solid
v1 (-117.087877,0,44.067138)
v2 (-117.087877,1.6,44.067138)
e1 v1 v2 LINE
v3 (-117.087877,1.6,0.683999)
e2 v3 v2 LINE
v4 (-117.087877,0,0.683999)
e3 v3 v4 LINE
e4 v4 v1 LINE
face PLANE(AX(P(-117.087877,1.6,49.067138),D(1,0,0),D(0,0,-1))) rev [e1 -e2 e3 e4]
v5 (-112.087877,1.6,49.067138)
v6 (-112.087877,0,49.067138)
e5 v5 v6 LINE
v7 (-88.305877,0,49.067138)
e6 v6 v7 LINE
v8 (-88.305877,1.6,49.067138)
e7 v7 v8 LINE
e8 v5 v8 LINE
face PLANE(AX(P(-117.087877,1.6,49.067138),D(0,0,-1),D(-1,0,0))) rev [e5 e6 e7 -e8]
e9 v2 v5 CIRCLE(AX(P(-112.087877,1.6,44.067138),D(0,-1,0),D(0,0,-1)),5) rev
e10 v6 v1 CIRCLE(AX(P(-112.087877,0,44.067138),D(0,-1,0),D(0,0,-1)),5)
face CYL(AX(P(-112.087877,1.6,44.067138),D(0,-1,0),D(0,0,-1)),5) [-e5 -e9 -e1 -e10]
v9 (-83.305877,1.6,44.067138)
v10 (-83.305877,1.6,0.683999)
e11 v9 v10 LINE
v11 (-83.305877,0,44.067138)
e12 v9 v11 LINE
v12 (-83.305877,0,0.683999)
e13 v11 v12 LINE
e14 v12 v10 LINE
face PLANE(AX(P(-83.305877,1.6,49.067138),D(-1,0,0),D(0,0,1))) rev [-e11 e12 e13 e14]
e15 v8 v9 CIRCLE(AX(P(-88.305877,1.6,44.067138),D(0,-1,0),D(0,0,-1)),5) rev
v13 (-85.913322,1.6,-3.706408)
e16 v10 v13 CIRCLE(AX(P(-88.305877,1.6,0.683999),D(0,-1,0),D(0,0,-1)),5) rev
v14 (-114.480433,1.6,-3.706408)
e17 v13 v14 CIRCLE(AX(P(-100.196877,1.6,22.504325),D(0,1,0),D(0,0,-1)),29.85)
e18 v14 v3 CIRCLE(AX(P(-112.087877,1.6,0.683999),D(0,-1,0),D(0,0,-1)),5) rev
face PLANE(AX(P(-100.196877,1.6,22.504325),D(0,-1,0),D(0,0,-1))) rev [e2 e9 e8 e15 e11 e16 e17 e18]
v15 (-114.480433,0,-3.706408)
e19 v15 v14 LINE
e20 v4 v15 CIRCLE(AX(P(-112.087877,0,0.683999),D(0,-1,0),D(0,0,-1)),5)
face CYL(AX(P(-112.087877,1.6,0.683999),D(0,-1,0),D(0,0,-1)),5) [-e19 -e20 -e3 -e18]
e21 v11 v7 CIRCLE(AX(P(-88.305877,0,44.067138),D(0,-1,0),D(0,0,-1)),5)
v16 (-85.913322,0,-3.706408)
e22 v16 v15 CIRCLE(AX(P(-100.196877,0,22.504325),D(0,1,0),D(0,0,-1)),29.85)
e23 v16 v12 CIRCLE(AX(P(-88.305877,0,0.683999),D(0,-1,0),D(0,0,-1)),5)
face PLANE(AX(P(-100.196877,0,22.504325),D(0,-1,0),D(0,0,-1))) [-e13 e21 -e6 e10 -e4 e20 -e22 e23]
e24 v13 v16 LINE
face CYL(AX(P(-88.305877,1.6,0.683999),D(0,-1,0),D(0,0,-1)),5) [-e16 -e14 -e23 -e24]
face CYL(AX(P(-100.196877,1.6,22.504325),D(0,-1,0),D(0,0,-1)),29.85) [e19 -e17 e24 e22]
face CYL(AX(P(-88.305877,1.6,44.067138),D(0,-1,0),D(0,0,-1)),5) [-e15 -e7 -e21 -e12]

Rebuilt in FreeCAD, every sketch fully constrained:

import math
import FreeCAD as App
import Part
import Sketcher
from FreeCAD import Vector
Q = App.Units.Quantity


def edges_at(feature, points):
    """Names of the edges that pass closest to the given points."""
    edges = feature.Shape.Edges
    near = lambda p: min(range(len(edges)), key=lambda i: edges[i].distToShape(Part.Vertex(*p))[0])
    return sorted({f"Edge{near(p) + 1}" for p in points})

doc = App.newDocument("Part")
params = doc.addObject("Spreadsheet::Sheet", "Params")
for row, (alias, value) in enumerate([
    ("sketch1_radius", "29.85 mm"),
    ("pad1_length", "1.6 mm"),
    ("fillet_radius", "5 mm"),
], start=1):
    params.set(f"A{row}", alias)
    params.set(f"B{row}", "=" + value)
    params.setAlias(f"B{row}", alias)

body = doc.addObject("PartDesign::Body", "Body")

sketch1 = body.newObject("Sketcher::SketchObject", "Sketch")
sketch1.AttachmentSupport = (doc.getObject("XZ_Plane"), [""])
sketch1.MapMode = "FlatFace"
sketch1.addGeometry([
    Part.LineSegment(Vector(-83, 49, 0), Vector(-83, -2, 0)),
    Part.ArcOfCircle(Part.Circle(Vector(-100, 23, 0), Vector(0, 0, 1), 30), math.radians(-124), math.radians(-56)),
    Part.LineSegment(Vector(-117, -2, 0), Vector(-117, 49, 0)),
    Part.LineSegment(Vector(-117, 49, 0), Vector(-83, 49, 0)),
], False)
sketch1.addConstraint([
    Sketcher.Constraint("Coincident", 0, 2, 1, 2),
    Sketcher.Constraint("Coincident", 1, 1, 2, 1),
    Sketcher.Constraint("Coincident", 2, 2, 3, 1),
    Sketcher.Constraint("Coincident", 3, 2, 0, 1),
    Sketcher.Constraint("Vertical", 0),
    Sketcher.Constraint("Vertical", 2),
    Sketcher.Constraint("Horizontal", 3),
    Sketcher.Constraint("Horizontal", 0, 2, 1, 1),
    Sketcher.Constraint("Radius", 1, Q("29.85 mm")),
    Sketcher.Constraint("DistanceX", 3, 1, 3, 2, Q("33.782 mm")),
    Sketcher.Constraint("DistanceY", 0, 2, 0, 1, Q("51.174124 mm")),
    Sketcher.Constraint("DistanceY", -1, 1, 2, 2, Q("49.067138 mm")),
    Sketcher.Constraint("DistanceX", 1, 3, -1, 1, Q("100.196877 mm")),
])
sketch1.setExpression("Constraints[8]", "Params.sketch1_radius")
pad1 = body.newObject("PartDesign::Pad", "Pad")
pad1.Profile = sketch1
pad1.setExpression("Length", "Params.pad1_length")
pad1.Reversed = True
doc.recompute()

fillet = body.newObject("PartDesign::Fillet", "Fillet")
fillet.Base = (pad1, edges_at(pad1, [
    (-83.306, 0.8, -2.107),
    (-83.306, 0.8, 49.067),
    (-117.088, 0.8, 49.067),
    (-117.088, 0.8, -2.107),
]))
fillet.setExpression("Radius", "Params.fillet_radius")

doc.recompute()
